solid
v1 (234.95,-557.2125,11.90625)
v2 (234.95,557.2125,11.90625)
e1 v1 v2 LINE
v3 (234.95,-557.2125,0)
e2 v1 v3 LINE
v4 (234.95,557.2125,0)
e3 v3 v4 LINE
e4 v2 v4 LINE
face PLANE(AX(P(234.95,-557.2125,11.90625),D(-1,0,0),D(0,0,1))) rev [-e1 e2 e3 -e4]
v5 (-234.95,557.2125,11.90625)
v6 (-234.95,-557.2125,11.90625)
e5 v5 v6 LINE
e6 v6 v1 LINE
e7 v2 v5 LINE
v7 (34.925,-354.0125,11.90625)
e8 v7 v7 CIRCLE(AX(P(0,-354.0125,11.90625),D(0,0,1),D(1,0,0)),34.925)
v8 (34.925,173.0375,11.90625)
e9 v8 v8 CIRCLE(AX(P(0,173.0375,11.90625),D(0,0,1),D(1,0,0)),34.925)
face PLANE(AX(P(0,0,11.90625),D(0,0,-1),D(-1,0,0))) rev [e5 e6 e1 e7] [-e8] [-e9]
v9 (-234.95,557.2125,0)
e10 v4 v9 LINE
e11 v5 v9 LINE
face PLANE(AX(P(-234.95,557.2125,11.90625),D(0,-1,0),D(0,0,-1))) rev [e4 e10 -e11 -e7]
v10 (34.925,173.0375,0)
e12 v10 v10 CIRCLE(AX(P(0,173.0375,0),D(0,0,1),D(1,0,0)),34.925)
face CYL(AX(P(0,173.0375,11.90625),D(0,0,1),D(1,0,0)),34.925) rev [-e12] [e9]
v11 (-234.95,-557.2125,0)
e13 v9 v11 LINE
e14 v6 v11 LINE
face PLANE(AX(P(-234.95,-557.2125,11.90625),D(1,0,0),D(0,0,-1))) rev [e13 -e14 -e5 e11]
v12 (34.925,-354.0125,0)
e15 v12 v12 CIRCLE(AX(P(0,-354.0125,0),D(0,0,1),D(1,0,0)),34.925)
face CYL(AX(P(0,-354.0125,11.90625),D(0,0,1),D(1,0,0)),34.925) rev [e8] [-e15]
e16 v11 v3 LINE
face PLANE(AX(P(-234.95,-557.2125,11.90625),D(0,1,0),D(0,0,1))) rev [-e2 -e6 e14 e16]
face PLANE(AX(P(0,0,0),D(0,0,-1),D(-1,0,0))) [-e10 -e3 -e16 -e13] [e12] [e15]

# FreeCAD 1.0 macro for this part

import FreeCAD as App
import Part
import Sketcher
from FreeCAD import Vector
Q = App.Units.Quantity

doc = App.newDocument("Part")
params = doc.addObject("Spreadsheet::Sheet", "Params")
for row, (alias, value) in enumerate([
    ("sketch1_width", "18.5 in"),
    ("sketch1_height", "43.875 in"),
    ("pad1_length", "0.46875 in"),
    ("sketch2_diameter", "2.75 in"),
    ("hole_diameter", "2.75 in"),
], start=1):
    params.set(f"A{row}", alias)
    params.set(f"B{row}", "=" + value)
    params.setAlias(f"B{row}", alias)

body = doc.addObject("PartDesign::Body", "Body")

# Sketch on XY plane
sketch1 = body.newObject("Sketcher::SketchObject", "Sketch")
sketch1.AttachmentSupport = (doc.getObject("XY_Plane"), [""])
sketch1.MapMode = "FlatFace"
sketch1.addGeometry([
    Part.LineSegment(Vector(-235, 557, 0), Vector(-235, -557, 0)),
    Part.LineSegment(Vector(-235, -557, 0), Vector(235, -557, 0)),
    Part.LineSegment(Vector(235, -557, 0), Vector(235, 557, 0)),
    Part.LineSegment(Vector(235, 557, 0), Vector(-235, 557, 0)),
], False)
sketch1.addConstraint([
    Sketcher.Constraint("Coincident", 0, 2, 1, 1),
    Sketcher.Constraint("Coincident", 1, 2, 2, 1),
    Sketcher.Constraint("Coincident", 2, 2, 3, 1),
    Sketcher.Constraint("Coincident", 3, 2, 0, 1),
    Sketcher.Constraint("Vertical", 0),
    Sketcher.Constraint("Horizontal", 1),
    Sketcher.Constraint("Vertical", 2),
    Sketcher.Constraint("Horizontal", 3),
    Sketcher.Constraint("Symmetric", 0, 2, 2, 2, -1, 1),
    Sketcher.Constraint("DistanceX", 1, 1, 1, 2, Q("18.5 in")),
    Sketcher.Constraint("DistanceY", 0, 2, 0, 1, Q("43.875 in")),
])
sketch1.setExpression("Constraints[9]", "Params.sketch1_width")
sketch1.setExpression("Constraints[10]", "Params.sketch1_height")
pad1 = body.newObject("PartDesign::Pad", "Pad")
pad1.Profile = sketch1
pad1.setExpression("Length", "Params.pad1_length")

# Sketch on XY plane
sketch2 = body.newObject("Sketcher::SketchObject", "Sketch001")
sketch2.AttachmentSupport = (doc.getObject("XY_Plane"), [""])
sketch2.MapMode = "FlatFace"
sketch2.AttachmentOffset = App.Placement(Vector(0, 0, 0.46875 * 25.4), App.Rotation())
sketch2.addGeometry([
    Part.Circle(Vector(0, 173, 0), Vector(0, 0, 1), 35),
    Part.Circle(Vector(0, -354, 0), Vector(0, 0, 1), 35),
], False)
sketch2.addConstraint([
    Sketcher.Constraint("Equal", 0, 1),
    Sketcher.Constraint("PointOnObject", 0, 3, -2),
    Sketcher.Constraint("PointOnObject", 1, 3, -2),
    Sketcher.Constraint("Diameter", 0, Q("2.75 in")),
    Sketcher.Constraint("DistanceY", 1, 3, 0, 3, Q("20.75 in")),
    Sketcher.Constraint("DistanceY", -1, 1, 0, 3, Q("6.8125 in")),
])
sketch2.setExpression("Constraints[3]", "Params.sketch2_diameter")
doc.recompute()
hole = body.newObject("PartDesign::Hole", "Hole")
hole.Profile = sketch2
hole.ThreadType = "None"
hole.setExpression("Diameter", "Params.hole_diameter")
hole.DepthType = "ThroughAll"

doc.recompute()
